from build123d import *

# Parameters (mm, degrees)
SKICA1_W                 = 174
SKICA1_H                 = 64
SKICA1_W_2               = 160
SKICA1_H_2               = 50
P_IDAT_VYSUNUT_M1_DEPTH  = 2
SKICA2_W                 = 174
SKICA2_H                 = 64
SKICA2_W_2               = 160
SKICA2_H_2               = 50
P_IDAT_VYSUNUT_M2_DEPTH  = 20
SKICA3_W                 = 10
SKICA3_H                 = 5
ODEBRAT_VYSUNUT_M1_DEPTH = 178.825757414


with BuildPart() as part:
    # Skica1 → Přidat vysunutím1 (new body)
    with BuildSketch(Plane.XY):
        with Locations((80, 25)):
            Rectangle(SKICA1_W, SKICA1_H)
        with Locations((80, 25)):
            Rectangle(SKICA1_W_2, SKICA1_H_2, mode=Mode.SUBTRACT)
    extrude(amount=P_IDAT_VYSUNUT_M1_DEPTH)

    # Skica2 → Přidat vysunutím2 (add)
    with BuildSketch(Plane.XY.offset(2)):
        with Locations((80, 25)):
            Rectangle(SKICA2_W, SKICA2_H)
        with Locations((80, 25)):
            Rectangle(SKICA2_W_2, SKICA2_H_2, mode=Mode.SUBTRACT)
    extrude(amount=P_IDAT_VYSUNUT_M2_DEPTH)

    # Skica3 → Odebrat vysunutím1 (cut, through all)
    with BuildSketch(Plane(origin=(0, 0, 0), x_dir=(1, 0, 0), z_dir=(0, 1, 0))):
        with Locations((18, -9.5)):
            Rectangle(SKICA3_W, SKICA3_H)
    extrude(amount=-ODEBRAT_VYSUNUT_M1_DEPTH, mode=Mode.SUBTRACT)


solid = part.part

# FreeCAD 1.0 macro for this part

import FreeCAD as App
import Part
import Sketcher

V = App.Vector

doc = App.newDocument("Part")
body = doc.addObject("PartDesign::Body", "Body")

# Sketch on XY plane
sketch1 = body.newObject("Sketcher::SketchObject", "Sketch")
sketch1.AttachmentSupport = (doc.getObject("XY_Plane"), [""])
sketch1.MapMode = "FlatFace"
sketch1.addGeometry([
    Part.LineSegment(V(-7, 57, 0), V(-7, -7, 0)),  # 0
    Part.LineSegment(V(-7, -7, 0), V(167, -7, 0)),  # 1
    Part.LineSegment(V(167, -7, 0), V(167, 57, 0)),  # 2
    Part.LineSegment(V(167, 57, 0), V(-7, 57, 0)),  # 3
    Part.LineSegment(V(160, 0, 0), V(0, 0, 0)),  # 4
    Part.LineSegment(V(0, 0, 0), V(0, 50, 0)),  # 5
    Part.LineSegment(V(0, 50, 0), V(160, 50, 0)),  # 6
    Part.LineSegment(V(160, 50, 0), V(160, 0, 0)),  # 7
], False)
sketch1.addConstraint([
    Sketcher.Constraint("Coincident", 0, 2, 1, 1),
    Sketcher.Constraint("Coincident", 1, 2, 2, 1),
    Sketcher.Constraint("Coincident", 2, 2, 3, 1),
    Sketcher.Constraint("Coincident", 3, 2, 0, 1),
    Sketcher.Constraint("Coincident", 4, 2, 5, 1),
    Sketcher.Constraint("Coincident", 5, 2, 6, 1),
    Sketcher.Constraint("Coincident", 6, 2, 7, 1),
    Sketcher.Constraint("Coincident", 7, 2, 4, 1),
    Sketcher.Constraint("Vertical", 0),
    Sketcher.Constraint("Horizontal", 1),
    Sketcher.Constraint("Vertical", 2),
    Sketcher.Constraint("Horizontal", 3),
    Sketcher.Constraint("Horizontal", 4),
    Sketcher.Constraint("Vertical", 5),
    Sketcher.Constraint("Horizontal", 6),
    Sketcher.Constraint("Vertical", 7),
    Sketcher.Constraint("Coincident", 4, 2, -1, 1),
    Sketcher.Constraint("DistanceX", 1, 1, 1, 2, 174.0),
    Sketcher.Constraint("DistanceX", 4, 2, 4, 1, 160.0),
    Sketcher.Constraint("DistanceY", 0, 2, 0, 1, 64.0),
    Sketcher.Constraint("DistanceY", 5, 1, 5, 2, 50.0),
    Sketcher.Constraint("DistanceX", 0, 2, -1, 1, 7.0),
    Sketcher.Constraint("DistanceY", 0, 2, -1, 1, 7.0),
])
pad1 = body.newObject("PartDesign::Pad", "Pad")
pad1.Profile = sketch1
pad1.Length = 2

# Sketch on XY plane
sketch2 = body.newObject("Sketcher::SketchObject", "Sketch001")
sketch2.AttachmentSupport = (doc.getObject("XY_Plane"), [""])
sketch2.MapMode = "FlatFace"
sketch2.AttachmentOffset = App.Placement(V(0, 0, 2), App.Rotation())
sketch2.addGeometry([
    Part.LineSegment(V(-7, 57, 0), V(-7, -7, 0)),  # 0
    Part.LineSegment(V(-7, -7, 0), V(167, -7, 0)),  # 1
    Part.LineSegment(V(167, -7, 0), V(167, 57, 0)),  # 2
    Part.LineSegment(V(167, 57, 0), V(-7, 57, 0)),  # 3
    Part.LineSegment(V(160, 0, 0), V(0, 0, 0)),  # 4
    Part.LineSegment(V(0, 0, 0), V(0, 50, 0)),  # 5
    Part.LineSegment(V(0, 50, 0), V(160, 50, 0)),  # 6
    Part.LineSegment(V(160, 50, 0), V(160, 0, 0)),  # 7
], False)
sketch2.addConstraint([
    Sketcher.Constraint("Coincident", 0, 2, 1, 1),
    Sketcher.Constraint("Coincident", 1, 2, 2, 1),
    Sketcher.Constraint("Coincident", 2, 2, 3, 1),
    Sketcher.Constraint("Coincident", 3, 2, 0, 1),
    Sketcher.Constraint("Coincident", 4, 2, 5, 1),
    Sketcher.Constraint("Coincident", 5, 2, 6, 1),
    Sketcher.Constraint("Coincident", 6, 2, 7, 1),
    Sketcher.Constraint("Coincident", 7, 2, 4, 1),
    Sketcher.Constraint("Vertical", 0),
    Sketcher.Constraint("Horizontal", 1),
    Sketcher.Constraint("Vertical", 2),
    Sketcher.Constraint("Horizontal", 3),
    Sketcher.Constraint("Horizontal", 4),
    Sketcher.Constraint("Vertical", 5),
    Sketcher.Constraint("Horizontal", 6),
    Sketcher.Constraint("Vertical", 7),
    Sketcher.Constraint("Coincident", 4, 2, -1, 1),
    Sketcher.Constraint("DistanceX", 1, 1, 1, 2, 174.0),
    Sketcher.Constraint("DistanceX", 4, 2, 4, 1, 160.0),
    Sketcher.Constraint("DistanceY", 0, 2, 0, 1, 64.0),
    Sketcher.Constraint("DistanceY", 5, 1, 5, 2, 50.0),
    Sketcher.Constraint("DistanceX", 0, 2, -1, 1, 7.0),
    Sketcher.Constraint("DistanceY", 0, 2, -1, 1, 7.0),
])
pad2 = body.newObject("PartDesign::Pad", "Pad001")
pad2.Profile = sketch2
pad2.Length = 20

# Sketch on XZ plane
sketch3 = body.newObject("Sketcher::SketchObject", "Sketch002")
sketch3.AttachmentSupport = (doc.getObject("XZ_Plane"), [""])
sketch3.MapMode = "FlatFace"
sketch3.addGeometry([
    Part.LineSegment(V(13, 7, 0), V(13, 12, 0)),
    Part.LineSegment(V(13, 12, 0), V(23, 12, 0)),
    Part.LineSegment(V(23, 12, 0), V(23, 7, 0)),
    Part.LineSegment(V(23, 7, 0), V(13, 7, 0)),
], False)
sketch3.addConstraint([
    Sketcher.Constraint("Coincident", 0, 2, 1, 1),
    Sketcher.Constraint("Coincident", 1, 2, 2, 1),
    Sketcher.Constraint("Coincident", 2, 2, 3, 1),
    Sketcher.Constraint("Coincident", 3, 2, 0, 1),
    Sketcher.Constraint("Vertical", 0),
    Sketcher.Constraint("Horizontal", 1),
    Sketcher.Constraint("Vertical", 2),
    Sketcher.Constraint("Horizontal", 3),
    Sketcher.Constraint("DistanceX", 1, 1, 1, 2, 10.0),
    Sketcher.Constraint("DistanceY", 0, 1, 0, 2, 5.0),
    Sketcher.Constraint("DistanceX", -1, 1, 0, 2, 13.0),
    Sketcher.Constraint("DistanceY", -1, 1, 0, 2, 12.0),
])
pocket1 = body.newObject("PartDesign::Pocket", "Pocket")
pocket1.Profile = sketch3
pocket1.Type = "ThroughAll"
pocket1.Reversed = True

doc.recompute()
